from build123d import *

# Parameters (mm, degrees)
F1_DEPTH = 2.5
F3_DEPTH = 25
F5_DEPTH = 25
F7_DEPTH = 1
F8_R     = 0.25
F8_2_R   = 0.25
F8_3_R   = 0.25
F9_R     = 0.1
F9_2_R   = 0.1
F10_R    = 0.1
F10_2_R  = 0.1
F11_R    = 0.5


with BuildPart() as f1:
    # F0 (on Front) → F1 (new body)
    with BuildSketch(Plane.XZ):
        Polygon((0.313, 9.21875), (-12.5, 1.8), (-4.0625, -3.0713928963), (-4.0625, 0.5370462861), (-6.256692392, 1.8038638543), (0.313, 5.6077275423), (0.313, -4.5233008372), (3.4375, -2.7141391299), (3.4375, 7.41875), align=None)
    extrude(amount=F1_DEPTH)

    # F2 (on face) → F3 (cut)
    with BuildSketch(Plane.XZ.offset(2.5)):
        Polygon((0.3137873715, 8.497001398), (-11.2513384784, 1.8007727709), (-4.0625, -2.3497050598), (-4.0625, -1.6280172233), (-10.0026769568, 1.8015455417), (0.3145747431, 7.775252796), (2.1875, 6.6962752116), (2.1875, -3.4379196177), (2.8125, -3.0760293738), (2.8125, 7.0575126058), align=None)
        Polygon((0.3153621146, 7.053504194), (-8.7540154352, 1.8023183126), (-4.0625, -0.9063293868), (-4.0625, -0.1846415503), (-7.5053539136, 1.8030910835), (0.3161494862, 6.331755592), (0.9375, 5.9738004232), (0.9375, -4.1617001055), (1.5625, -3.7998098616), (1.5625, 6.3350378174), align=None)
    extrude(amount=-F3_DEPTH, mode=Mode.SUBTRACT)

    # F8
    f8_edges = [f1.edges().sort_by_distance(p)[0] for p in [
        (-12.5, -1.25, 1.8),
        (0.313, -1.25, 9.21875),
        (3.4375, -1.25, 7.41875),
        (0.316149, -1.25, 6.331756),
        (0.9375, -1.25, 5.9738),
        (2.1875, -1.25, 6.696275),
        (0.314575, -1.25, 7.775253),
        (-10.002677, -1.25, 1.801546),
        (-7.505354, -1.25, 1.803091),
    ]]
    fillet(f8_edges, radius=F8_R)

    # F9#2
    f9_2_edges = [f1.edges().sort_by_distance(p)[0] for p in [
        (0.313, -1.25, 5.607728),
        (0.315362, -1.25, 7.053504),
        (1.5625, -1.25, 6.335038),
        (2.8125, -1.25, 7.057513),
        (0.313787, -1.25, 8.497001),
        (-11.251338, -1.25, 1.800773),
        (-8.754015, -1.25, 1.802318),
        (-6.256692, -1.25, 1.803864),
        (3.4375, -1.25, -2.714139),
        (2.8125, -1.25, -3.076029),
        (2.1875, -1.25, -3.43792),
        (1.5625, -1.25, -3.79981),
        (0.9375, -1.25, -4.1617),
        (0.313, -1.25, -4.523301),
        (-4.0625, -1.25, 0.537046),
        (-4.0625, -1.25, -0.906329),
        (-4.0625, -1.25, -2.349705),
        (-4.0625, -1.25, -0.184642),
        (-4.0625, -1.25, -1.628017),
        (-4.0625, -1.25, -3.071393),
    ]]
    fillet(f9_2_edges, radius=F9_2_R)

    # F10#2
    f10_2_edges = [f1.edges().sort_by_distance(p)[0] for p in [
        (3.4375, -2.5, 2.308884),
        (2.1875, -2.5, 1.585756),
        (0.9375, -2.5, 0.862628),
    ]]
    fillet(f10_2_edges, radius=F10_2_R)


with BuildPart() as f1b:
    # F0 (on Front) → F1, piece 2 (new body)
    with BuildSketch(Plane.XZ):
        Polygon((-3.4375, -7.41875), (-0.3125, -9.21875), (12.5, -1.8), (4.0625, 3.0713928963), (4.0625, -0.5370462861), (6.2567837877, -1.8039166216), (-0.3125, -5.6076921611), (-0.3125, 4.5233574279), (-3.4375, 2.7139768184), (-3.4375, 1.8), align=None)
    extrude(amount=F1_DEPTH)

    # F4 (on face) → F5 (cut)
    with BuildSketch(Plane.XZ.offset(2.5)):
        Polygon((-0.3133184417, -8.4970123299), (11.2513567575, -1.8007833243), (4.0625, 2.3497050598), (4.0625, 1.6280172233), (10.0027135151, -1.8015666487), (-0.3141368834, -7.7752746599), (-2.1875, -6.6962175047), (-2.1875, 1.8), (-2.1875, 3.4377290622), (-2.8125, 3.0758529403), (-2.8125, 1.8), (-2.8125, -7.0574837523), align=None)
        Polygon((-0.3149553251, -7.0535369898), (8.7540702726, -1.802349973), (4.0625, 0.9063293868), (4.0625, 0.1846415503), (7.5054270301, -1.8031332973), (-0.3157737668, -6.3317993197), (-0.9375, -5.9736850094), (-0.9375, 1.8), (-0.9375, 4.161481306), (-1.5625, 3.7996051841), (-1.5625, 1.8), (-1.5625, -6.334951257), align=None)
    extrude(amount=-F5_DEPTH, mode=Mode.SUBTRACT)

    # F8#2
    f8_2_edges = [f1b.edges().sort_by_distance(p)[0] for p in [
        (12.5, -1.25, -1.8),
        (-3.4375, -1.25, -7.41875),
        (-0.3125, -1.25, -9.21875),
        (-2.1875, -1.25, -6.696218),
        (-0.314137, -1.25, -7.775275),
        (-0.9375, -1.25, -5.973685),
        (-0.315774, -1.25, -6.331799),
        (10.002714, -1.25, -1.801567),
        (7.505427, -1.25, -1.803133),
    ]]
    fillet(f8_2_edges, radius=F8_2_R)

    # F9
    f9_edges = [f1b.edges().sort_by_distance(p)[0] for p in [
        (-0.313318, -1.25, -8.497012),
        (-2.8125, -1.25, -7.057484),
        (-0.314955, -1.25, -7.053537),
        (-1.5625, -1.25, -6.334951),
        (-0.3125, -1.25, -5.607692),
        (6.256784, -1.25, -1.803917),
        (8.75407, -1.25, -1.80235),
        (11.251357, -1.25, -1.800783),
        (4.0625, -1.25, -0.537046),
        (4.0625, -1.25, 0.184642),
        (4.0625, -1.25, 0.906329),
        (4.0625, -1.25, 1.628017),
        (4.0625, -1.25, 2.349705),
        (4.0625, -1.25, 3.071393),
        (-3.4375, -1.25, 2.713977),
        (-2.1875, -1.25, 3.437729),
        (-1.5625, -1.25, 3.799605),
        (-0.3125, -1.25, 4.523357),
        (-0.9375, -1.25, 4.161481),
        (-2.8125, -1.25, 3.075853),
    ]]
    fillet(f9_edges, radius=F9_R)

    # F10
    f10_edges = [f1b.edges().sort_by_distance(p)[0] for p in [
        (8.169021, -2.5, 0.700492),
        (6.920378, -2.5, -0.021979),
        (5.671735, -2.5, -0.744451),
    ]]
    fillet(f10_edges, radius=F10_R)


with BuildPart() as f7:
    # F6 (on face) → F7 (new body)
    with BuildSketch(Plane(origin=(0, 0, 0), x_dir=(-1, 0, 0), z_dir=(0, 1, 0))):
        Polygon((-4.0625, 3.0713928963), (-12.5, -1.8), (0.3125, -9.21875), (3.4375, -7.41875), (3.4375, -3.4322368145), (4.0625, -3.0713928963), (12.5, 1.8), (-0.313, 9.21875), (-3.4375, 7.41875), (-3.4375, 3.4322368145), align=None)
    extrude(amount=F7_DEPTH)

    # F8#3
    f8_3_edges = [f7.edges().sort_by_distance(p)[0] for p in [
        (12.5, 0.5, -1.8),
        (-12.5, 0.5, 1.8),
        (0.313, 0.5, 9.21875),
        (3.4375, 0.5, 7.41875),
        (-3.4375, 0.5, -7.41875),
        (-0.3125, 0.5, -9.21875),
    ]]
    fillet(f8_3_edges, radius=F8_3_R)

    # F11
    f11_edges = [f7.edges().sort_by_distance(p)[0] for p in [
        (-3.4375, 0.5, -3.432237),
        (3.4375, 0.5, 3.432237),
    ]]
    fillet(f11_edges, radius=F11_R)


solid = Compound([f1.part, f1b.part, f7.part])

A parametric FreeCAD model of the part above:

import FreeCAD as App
import Part
import Sketcher
Q = App.Units.Quantity


def edges_at(feature, points):
    """Names of the edges that pass closest to the given points."""
    edges = feature.Shape.Edges
    near = lambda p: min(range(len(edges)), key=lambda i: edges[i].distToShape(Part.Vertex(*p))[0])
    return sorted({f"Edge{near(p) + 1}" for p in points})


def add_polygon(sketch, points):
    """Adds a closed chain of lines whose ends are joined by coincident constraints."""
    first, n = sketch.GeometryCount, len(points)
    for a, b in zip(points, points[1:] + points[:1]):
        sketch.addGeometry(Part.LineSegment(App.Vector(*a, 0), App.Vector(*b, 0)), False)
    for i in range(n):
        sketch.addConstraint(Sketcher.Constraint("Coincident", first + i, 2, first + (i + 1) % n, 1))

doc = App.newDocument("Part")
body = doc.addObject("PartDesign::Body", "Body")
body.AllowCompound = True

# Sketch on XZ plane
sketch1 = body.newObject("Sketcher::SketchObject", "Sketch")
sketch1.AttachmentSupport = (doc.getObject("XZ_Plane"), [""])
sketch1.MapMode = "FlatFace"
add_polygon(sketch1, [(0.313, 9.21875), (-12.5, 1.8), (-4.0625, -3.071393), (-4.0625, 0.537046), (-6.256692, 1.803864), (0.313, 5.607728), (0.313, -4.523301), (3.4375, -2.714139), (3.4375, 7.41875)])  # lines 0-8
sketch1.addConstraint([
    Sketcher.Constraint("Vertical", 2),
    Sketcher.Constraint("Vertical", 5),
    Sketcher.Constraint("Vertical", 7),
    Sketcher.Constraint("Parallel", 1, 3),
    Sketcher.Constraint("Parallel", 0, 4),
    Sketcher.Constraint("Vertical", 5, 2, 8, 2),
    Sketcher.Constraint("Angle", 1, Q("-30 deg")),
    Sketcher.Constraint("DistanceX", 0, 2, -1, 1, Q("12.5 mm")),
    Sketcher.Constraint("DistanceY", -1, 1, 0, 2, Q("1.8 mm")),
    Sketcher.Constraint("DistanceX", 1, 2, 6, 2, Q("7.5 mm")),
    Sketcher.Constraint("DistanceY", 7, 2, 8, 2, Q("1.8 mm")),
    Sketcher.Constraint("DistanceX", -1, 1, 4, 2, Q("0.313 mm")),
    Sketcher.Constraint("DistanceY", 2, 1, 2, 2, Q("3.608439 mm")),
    Sketcher.Constraint("DistanceY", 5, 2, 5, 1, Q("10.131028 mm")),
    Sketcher.Constraint("DistanceY", 7, 1, 7, 2, Q("10.132889 mm")),
    Sketcher.Constraint("DistanceX", 1, 2, -1, 1, Q("4.0625 mm")),
    Sketcher.Constraint("DistanceY", 5, 2, -1, 1, Q("4.523301 mm")),
    Sketcher.Constraint("Distance", 0, Q("14.80577 mm")),
])
pad1 = body.newObject("PartDesign::Pad", "Pad")
pad1.Profile = sketch1
pad1.Length = 2.5

# Sketch on XZ plane
sketch2 = body.newObject("Sketcher::SketchObject", "Sketch001")
sketch2.AttachmentSupport = (doc.getObject("XZ_Plane"), [""])
sketch2.MapMode = "FlatFace"
sketch2.AttachmentOffset = App.Placement(App.Vector(0, 0, 2.5), App.Rotation())
add_polygon(sketch2, [(0.313787, 8.497001), (-11.251338, 1.800773), (-4.0625, -2.349705), (-4.0625, -1.628017), (-10.002677, 1.801546), (0.314575, 7.775253), (2.1875, 6.696275), (2.1875, -3.43792), (2.8125, -3.076029), (2.8125, 7.057513)])  # lines 0-9
add_polygon(sketch2, [(0.315362, 7.053504), (-8.754015, 1.802318), (-4.0625, -0.906329), (-4.0625, -0.184642), (-7.505354, 1.803091), (0.316149, 6.331756), (0.9375, 5.9738), (0.9375, -4.1617), (1.5625, -3.79981), (1.5625, 6.335038)])  # lines 10-19
sketch2.addConstraint([
    Sketcher.Constraint("Vertical", 2),
    Sketcher.Constraint("Vertical", 6),
    Sketcher.Constraint("Vertical", 8),
    Sketcher.Constraint("Vertical", 12),
    Sketcher.Constraint("Vertical", 16),
    Sketcher.Constraint("Vertical", 18),
    Sketcher.Constraint("DistanceX", 1, 2, 16, 2, Q("5 mm")),
    Sketcher.Constraint("DistanceX", 11, 2, 16, 2, Q("5 mm")),
    Sketcher.Constraint("DistanceX", 2, 2, 5, 2, Q("6.25 mm")),
    Sketcher.Constraint("DistanceX", 17, 2, 7, 2, Q("1.25 mm")),
    Sketcher.Constraint("DistanceY", 16, 2, 16, 1, Q("10.135501 mm")),
    Sketcher.Constraint("DistanceY", -1, 1, 9, 2, Q("8.497001 mm")),
    Sketcher.Constraint("DistanceX", 6, 2, 7, 2, Q("0.625 mm")),
    Sketcher.Constraint("DistanceY", 8, 1, 8, 2, Q("10.133542 mm")),
    Sketcher.Constraint("DistanceX", 1, 2, -1, 1, Q("4.0625 mm")),
    Sketcher.Constraint("DistanceY", -1, 1, 15, 2, Q("5.9738 mm")),
    Sketcher.Constraint("Distance", 5, Q("2.161491 mm")),
    Sketcher.Constraint("Distance", 7, Q("0.722212 mm")),
    Sketcher.Constraint("Distance", 14, Q("9.03796 mm")),
    Sketcher.Constraint("Distance", 17, Q("0.722212 mm")),
    Sketcher.Constraint("DistanceY", 2, 1, 2, 2, Q("0.721688 mm")),
    Sketcher.Constraint("DistanceY", 6, 2, 6, 1, Q("10.134195 mm")),
    Sketcher.Constraint("DistanceY", 12, 1, 12, 2, Q("0.721688 mm")),
    Sketcher.Constraint("DistanceY", 18, 1, 18, 2, Q("10.134848 mm")),
    Sketcher.Constraint("DistanceX", 0, 2, -1, 1, Q("11.251338 mm")),
    Sketcher.Constraint("DistanceY", 6, 2, -1, 1, Q("3.43792 mm")),
    Sketcher.Constraint("DistanceY", -1, 1, 10, 2, Q("1.802318 mm")),
    Sketcher.Constraint("DistanceY", 11, 2, -1, 1, Q("0.906329 mm")),
    Sketcher.Constraint("DistanceY", -1, 1, 13, 2, Q("1.803091 mm")),
    Sketcher.Constraint("DistanceX", -1, 1, 14, 2, Q("0.316149 mm")),
    Sketcher.Constraint("DistanceY", 2, 2, 0, 2, Q("3.42879 mm")),
    Sketcher.Constraint("DistanceX", 0, 2, 3, 2, Q("1.248662 mm")),
    Sketcher.Constraint("DistanceY", 1, 2, 3, 2, Q("4.151251 mm")),
    Sketcher.Constraint("DistanceY", 2, 2, 4, 2, Q("9.40327 mm")),
    Sketcher.Constraint("DistanceX", 3, 2, 4, 2, Q("10.317252 mm")),
    Sketcher.Constraint("DistanceX", 3, 2, 10, 2, Q("1.248662 mm")),
    Sketcher.Constraint("DistanceX", 10, 2, 13, 2, Q("1.248662 mm")),
    Sketcher.Constraint("DistanceY", 14, 2, 19, 2, Q("0.721749 mm")),
    Sketcher.Constraint("Distance", 0, Q("13.363817 mm")),
    Sketcher.Constraint("Distance", 10, Q("10.479912 mm")),
])
pocket1 = body.newObject("PartDesign::Pocket", "Pocket")
pocket1.Profile = sketch2
pocket1.Length = 25
doc.recompute()

fillet = body.newObject("PartDesign::Fillet", "Fillet")
fillet.Base = (pocket1, edges_at(pocket1, [
    (-12.5, -1.25, 1.8),
    (0.313, -1.25, 9.219),
    (3.438, -1.25, 7.419),
    (0.316, -1.25, 6.332),
    (0.938, -1.25, 5.974),
    (2.188, -1.25, 6.696),
    (0.315, -1.25, 7.775),
    (-10.003, -1.25, 1.802),
    (-7.505, -1.25, 1.803),
]))
fillet.Radius = 0.25
doc.recompute()

fillet2 = body.newObject("PartDesign::Fillet", "Fillet001")
fillet2.Base = (fillet, edges_at(fillet, [
    (0.313, -1.25, 5.608),
    (0.315, -1.25, 7.054),
    (1.562, -1.25, 6.335),
    (2.812, -1.25, 7.058),
    (0.314, -1.25, 8.497),
    (-11.251, -1.25, 1.801),
    (-8.754, -1.25, 1.802),
    (-6.257, -1.25, 1.804),
    (3.438, -1.25, -2.714),
    (2.812, -1.25, -3.076),
    (2.188, -1.25, -3.438),
    (1.562, -1.25, -3.8),
    (0.938, -1.25, -4.162),
    (0.313, -1.25, -4.523),
    (-4.062, -1.25, 0.537),
    (-4.062, -1.25, -0.906),
    (-4.062, -1.25, -2.35),
    (-4.062, -1.25, -0.185),
    (-4.062, -1.25, -1.628),
    (-4.062, -1.25, -3.071),
]))
fillet2.Radius = 0.1
doc.recompute()

fillet3 = body.newObject("PartDesign::Fillet", "Fillet002")
fillet3.Base = (fillet2, edges_at(fillet2, [(3.438, -2.5, 2.309), (2.188, -2.5, 1.586), (0.938, -2.5, 0.863)]))
fillet3.Radius = 0.1
body2 = doc.addObject("PartDesign::Body", "Body001")
body2.AllowCompound = True

# Sketch on XZ plane
sketch3 = body2.newObject("Sketcher::SketchObject", "Sketch002")
sketch3.AttachmentSupport = (doc.getObject("XZ_Plane001"), [""])
sketch3.MapMode = "FlatFace"
add_polygon(sketch3, [(-3.4375, -7.41875), (-0.3125, -9.21875), (12.5, -1.8), (4.0625, 3.071393), (4.0625, -0.537046), (6.256784, -1.803917), (-0.3125, -5.607692), (-0.3125, 4.523357), (-3.4375, 2.713977)])  # lines 0-8
sketch3.addConstraint([
    Sketcher.Constraint("Vertical", 3),
    Sketcher.Constraint("Vertical", 6),
    Sketcher.Constraint("Vertical", 8),
    Sketcher.Constraint("Parallel", 2, 4),
    Sketcher.Constraint("Parallel", 1, 5),
    Sketcher.Constraint("Vertical", 0, 2, 5, 2),
    Sketcher.Constraint("Angle", 2, Q("150 deg")),
    Sketcher.Constraint("DistanceX", -1, 1, 1, 2, Q("12.5 mm")),
    Sketcher.Constraint("DistanceY", 1, 2, -1, 1, Q("1.8 mm")),
    Sketcher.Constraint("DistanceX", 7, 2, 2, 2, Q("7.5 mm")),
    Sketcher.Constraint("DistanceY", 0, 2, 8, 2, Q("1.8 mm")),
    Sketcher.Constraint("DistanceX", 0, 2, 2, 2, Q("4.375 mm")),
    Sketcher.Constraint("DistanceY", 3, 2, 3, 1, Q("3.608439 mm")),
    Sketcher.Constraint("DistanceY", 6, 1, 6, 2, Q("10.13105 mm")),
    Sketcher.Constraint("DistanceX", 0, 2, -1, 1, Q("0.3125 mm")),
    Sketcher.Constraint("Distance", 4, Q("2.533741 mm")),
    Sketcher.Constraint("Distance", 5, Q("7.59106 mm")),
    Sketcher.Constraint("DistanceY", 8, 2, 8, 1, Q("10.132727 mm")),
])
pad2 = body2.newObject("PartDesign::Pad", "Pad001")
pad2.Profile = sketch3
pad2.Length = 2.5

# Sketch on XZ plane
sketch4 = body2.newObject("Sketcher::SketchObject", "Sketch003")
sketch4.AttachmentSupport = (doc.getObject("XZ_Plane001"), [""])
sketch4.MapMode = "FlatFace"
sketch4.AttachmentOffset = App.Placement(App.Vector(0, 0, 2.5), App.Rotation())
add_polygon(sketch4, [(-0.313318, -8.497012), (11.251357, -1.800783), (4.0625, 2.349705), (4.0625, 1.628017), (10.002714, -1.801567), (-0.314137, -7.775275), (-2.1875, -6.696218), (-2.1875, 3.437729), (-2.8125, 3.075853), (-2.8125, -7.057484)])  # lines 0-9
add_polygon(sketch4, [(-0.314955, -7.053537), (8.75407, -1.80235), (4.0625, 0.906329), (4.0625, 0.184642), (7.505427, -1.803133), (-0.315774, -6.331799), (-0.9375, -5.973685), (-0.9375, 4.161481), (-1.5625, 3.799605), (-1.5625, -6.334951)])  # lines 10-19
sketch4.addConstraint([
    Sketcher.Constraint("Vertical", 2),
    Sketcher.Constraint("Vertical", 6),
    Sketcher.Constraint("Vertical", 8),
    Sketcher.Constraint("Vertical", 12),
    Sketcher.Constraint("Vertical", 16),
    Sketcher.Constraint("Vertical", 18),
    Sketcher.Constraint("Parallel", 1, 3),
    Sketcher.Constraint("Parallel", 0, 4),
    Sketcher.Constraint("Parallel", 5, 9),
    Sketcher.Constraint("Parallel", 4, 10),
    Sketcher.Constraint("Parallel", 3, 11),
    Sketcher.Constraint("Parallel", 11, 13),
    Sketcher.Constraint("Parallel", 10, 14),
    Sketcher.Constraint("Parallel", 9, 15),
    Sketcher.Constraint("Parallel", 7, 17),
    Sketcher.Constraint("Parallel", 15, 19),
    Sketcher.Constraint("Vertical", 2, 2, 11, 2),
    Sketcher.Constraint("Equal", 2, 12),
    Sketcher.Constraint("Equal", 7, 17),
    Sketcher.Constraint("Angle", 1, Q("150 deg")),
    Sketcher.Constraint("DistanceX", 16, 2, 1, 2, Q("5 mm")),
    Sketcher.Constraint("DistanceX", 5, 2, 2, 2, Q("6.25 mm")),
    Sketcher.Constraint("DistanceX", 7, 2, 6, 2, Q("0.625 mm")),
    Sketcher.Constraint("Distance", 14, Q("9.037699 mm")),
    Sketcher.Constraint("Distance", 19, Q("1.439699 mm")),
    Sketcher.Constraint("DistanceX", -1, 1, 1, 2, Q("4.0625 mm")),
    Sketcher.Constraint("DistanceY", 14, 2, -1, 1, Q("6.331799 mm")),
    Sketcher.Constraint("DistanceY", 0, 2, 2, 2, Q("3.428801 mm")),
    Sketcher.Constraint("DistanceY", 8, 2, 2, 2, Q("8.685501 mm")),
    Sketcher.Constraint("DistanceY", 11, 2, 6, 2, Q("2.5314 mm")),
    Sketcher.Constraint("DistanceY", 8, 2, 15, 2, Q("1.083799 mm")),
    Sketcher.Constraint("DistanceY", 1, 2, 17, 2, Q("1.4499 mm")),
    Sketcher.Constraint("Distance", 5, Q("2.16191 mm")),
    Sketcher.Constraint("Distance", 9, Q("2.88412 mm")),
    Sketcher.Constraint("Distance", 10, Q("10.479608 mm")),
    Sketcher.Constraint("Distance", 11, Q("5.417359 mm")),
    Sketcher.Constraint("Distance", 13, Q("3.97555 mm")),
    Sketcher.Constraint("Distance", 15, Q("0.717488 mm")),
    Sketcher.Constraint("DistanceY", 6, 1, 6, 2, Q("10.133947 mm")),
    Sketcher.Constraint("DistanceY", 8, 2, 8, 1, Q("10.133337 mm")),
])
pocket2 = body2.newObject("PartDesign::Pocket", "Pocket001")
pocket2.Profile = sketch4
pocket2.Length = 25
doc.recompute()

fillet4 = body2.newObject("PartDesign::Fillet", "Fillet003")
fillet4.Base = (pocket2, edges_at(pocket2, [
    (12.5, -1.25, -1.8),
    (-3.438, -1.25, -7.419),
    (-0.312, -1.25, -9.219),
    (-2.188, -1.25, -6.696),
    (-0.314, -1.25, -7.775),
    (-0.938, -1.25, -5.974),
    (-0.316, -1.25, -6.332),
    (10.003, -1.25, -1.802),
    (7.505, -1.25, -1.803),
]))
fillet4.Radius = 0.25
doc.recompute()

fillet5 = body2.newObject("PartDesign::Fillet", "Fillet004")
fillet5.Base = (fillet4, edges_at(fillet4, [
    (-0.313, -1.25, -8.497),
    (-2.812, -1.25, -7.057),
    (-0.315, -1.25, -7.054),
    (-1.562, -1.25, -6.335),
    (-0.312, -1.25, -5.608),
    (6.257, -1.25, -1.804),
    (8.754, -1.25, -1.802),
    (11.251, -1.25, -1.801),
    (4.062, -1.25, -0.537),
    (4.062, -1.25, 0.185),
    (4.062, -1.25, 0.906),
    (4.062, -1.25, 1.628),
    (4.062, -1.25, 2.35),
    (4.062, -1.25, 3.071),
    (-3.438, -1.25, 2.714),
    (-2.188, -1.25, 3.438),
    (-1.562, -1.25, 3.8),
    (-0.312, -1.25, 4.523),
    (-0.938, -1.25, 4.161),
    (-2.812, -1.25, 3.076),
]))
fillet5.Radius = 0.1
doc.recompute()

fillet6 = body2.newObject("PartDesign::Fillet", "Fillet005")
fillet6.Base = (fillet5, edges_at(fillet5, [(8.169, -2.5, 0.7), (6.92, -2.5, -0.022), (5.672, -2.5, -0.744)]))
fillet6.Radius = 0.1
body3 = doc.addObject("PartDesign::Body", "Body002")

# Sketch on XZ plane
sketch5 = body3.newObject("Sketcher::SketchObject", "Sketch004")
sketch5.AttachmentSupport = (doc.getObject("XZ_Plane002"), [""])
sketch5.MapMode = "FlatFace"
add_polygon(sketch5, [(4.0625, 3.071393), (12.5, -1.8), (-0.3125, -9.21875), (-3.4375, -7.41875), (-3.4375, -3.432237), (-4.0625, -3.071393), (-12.5, 1.8), (0.313, 9.21875), (3.4375, 7.41875), (3.4375, 3.432237)])  # lines 0-9
sketch5.addConstraint([
    Sketcher.Constraint("Vertical", 3),
    Sketcher.Constraint("Vertical", 8),
    Sketcher.Constraint("Symmetric", 0, 2, 5, 2, -1, 1),
    Sketcher.Constraint("Symmetric", 2, 2, 7, 2, -1, 1),
    Sketcher.Constraint("Symmetric", 4, 2, 9, 2, -1, 1),
    Sketcher.Constraint("Parallel", 0, 4),
    Sketcher.Constraint("Parallel", 5, 9),
    Sketcher.Constraint("Angle", 0, Q("-30 deg")),
    Sketcher.Constraint("DistanceX", 5, 2, 0, 2, Q("25 mm")),
    Sketcher.Constraint("DistanceY", 0, 2, -1, 1, Q("1.8 mm")),
    Sketcher.Constraint("DistanceY", 1, 2, 2, 2, Q("1.8 mm")),
    Sketcher.Constraint("DistanceY", 7, 2, 6, 2, Q("1.8 mm")),
    Sketcher.Constraint("DistanceX", 4, 2, 7, 2, Q("7.5 mm")),
    Sketcher.Constraint("DistanceX", 4, 2, 1, 2, Q("3.75 mm")),
    Sketcher.Constraint("DistanceX", -1, 1, 6, 2, Q("0.313 mm")),
    Sketcher.Constraint("DistanceX", 2, 2, 1, 2, Q("3.125 mm")),
    Sketcher.Constraint("DistanceY", 2, 2, 6, 2, Q("16.6375 mm")),
])
pad3 = body3.newObject("PartDesign::Pad", "Pad002")
pad3.Profile = sketch5
pad3.Length = 1
pad3.Reversed = True
doc.recompute()

fillet7 = body3.newObject("PartDesign::Fillet", "Fillet006")
fillet7.Base = (pad3, edges_at(pad3, [
    (12.5, 0.5, -1.8),
    (-12.5, 0.5, 1.8),
    (0.313, 0.5, 9.219),
    (3.438, 0.5, 7.419),
    (-3.438, 0.5, -7.419),
    (-0.312, 0.5, -9.219),
]))
fillet7.Radius = 0.25
doc.recompute()

fillet8 = body3.newObject("PartDesign::Fillet", "Fillet007")
fillet8.Base = (fillet7, edges_at(fillet7, [(-3.438, 0.5, -3.432), (3.438, 0.5, 3.432)]))
fillet8.Radius = 0.5

doc.recompute()
